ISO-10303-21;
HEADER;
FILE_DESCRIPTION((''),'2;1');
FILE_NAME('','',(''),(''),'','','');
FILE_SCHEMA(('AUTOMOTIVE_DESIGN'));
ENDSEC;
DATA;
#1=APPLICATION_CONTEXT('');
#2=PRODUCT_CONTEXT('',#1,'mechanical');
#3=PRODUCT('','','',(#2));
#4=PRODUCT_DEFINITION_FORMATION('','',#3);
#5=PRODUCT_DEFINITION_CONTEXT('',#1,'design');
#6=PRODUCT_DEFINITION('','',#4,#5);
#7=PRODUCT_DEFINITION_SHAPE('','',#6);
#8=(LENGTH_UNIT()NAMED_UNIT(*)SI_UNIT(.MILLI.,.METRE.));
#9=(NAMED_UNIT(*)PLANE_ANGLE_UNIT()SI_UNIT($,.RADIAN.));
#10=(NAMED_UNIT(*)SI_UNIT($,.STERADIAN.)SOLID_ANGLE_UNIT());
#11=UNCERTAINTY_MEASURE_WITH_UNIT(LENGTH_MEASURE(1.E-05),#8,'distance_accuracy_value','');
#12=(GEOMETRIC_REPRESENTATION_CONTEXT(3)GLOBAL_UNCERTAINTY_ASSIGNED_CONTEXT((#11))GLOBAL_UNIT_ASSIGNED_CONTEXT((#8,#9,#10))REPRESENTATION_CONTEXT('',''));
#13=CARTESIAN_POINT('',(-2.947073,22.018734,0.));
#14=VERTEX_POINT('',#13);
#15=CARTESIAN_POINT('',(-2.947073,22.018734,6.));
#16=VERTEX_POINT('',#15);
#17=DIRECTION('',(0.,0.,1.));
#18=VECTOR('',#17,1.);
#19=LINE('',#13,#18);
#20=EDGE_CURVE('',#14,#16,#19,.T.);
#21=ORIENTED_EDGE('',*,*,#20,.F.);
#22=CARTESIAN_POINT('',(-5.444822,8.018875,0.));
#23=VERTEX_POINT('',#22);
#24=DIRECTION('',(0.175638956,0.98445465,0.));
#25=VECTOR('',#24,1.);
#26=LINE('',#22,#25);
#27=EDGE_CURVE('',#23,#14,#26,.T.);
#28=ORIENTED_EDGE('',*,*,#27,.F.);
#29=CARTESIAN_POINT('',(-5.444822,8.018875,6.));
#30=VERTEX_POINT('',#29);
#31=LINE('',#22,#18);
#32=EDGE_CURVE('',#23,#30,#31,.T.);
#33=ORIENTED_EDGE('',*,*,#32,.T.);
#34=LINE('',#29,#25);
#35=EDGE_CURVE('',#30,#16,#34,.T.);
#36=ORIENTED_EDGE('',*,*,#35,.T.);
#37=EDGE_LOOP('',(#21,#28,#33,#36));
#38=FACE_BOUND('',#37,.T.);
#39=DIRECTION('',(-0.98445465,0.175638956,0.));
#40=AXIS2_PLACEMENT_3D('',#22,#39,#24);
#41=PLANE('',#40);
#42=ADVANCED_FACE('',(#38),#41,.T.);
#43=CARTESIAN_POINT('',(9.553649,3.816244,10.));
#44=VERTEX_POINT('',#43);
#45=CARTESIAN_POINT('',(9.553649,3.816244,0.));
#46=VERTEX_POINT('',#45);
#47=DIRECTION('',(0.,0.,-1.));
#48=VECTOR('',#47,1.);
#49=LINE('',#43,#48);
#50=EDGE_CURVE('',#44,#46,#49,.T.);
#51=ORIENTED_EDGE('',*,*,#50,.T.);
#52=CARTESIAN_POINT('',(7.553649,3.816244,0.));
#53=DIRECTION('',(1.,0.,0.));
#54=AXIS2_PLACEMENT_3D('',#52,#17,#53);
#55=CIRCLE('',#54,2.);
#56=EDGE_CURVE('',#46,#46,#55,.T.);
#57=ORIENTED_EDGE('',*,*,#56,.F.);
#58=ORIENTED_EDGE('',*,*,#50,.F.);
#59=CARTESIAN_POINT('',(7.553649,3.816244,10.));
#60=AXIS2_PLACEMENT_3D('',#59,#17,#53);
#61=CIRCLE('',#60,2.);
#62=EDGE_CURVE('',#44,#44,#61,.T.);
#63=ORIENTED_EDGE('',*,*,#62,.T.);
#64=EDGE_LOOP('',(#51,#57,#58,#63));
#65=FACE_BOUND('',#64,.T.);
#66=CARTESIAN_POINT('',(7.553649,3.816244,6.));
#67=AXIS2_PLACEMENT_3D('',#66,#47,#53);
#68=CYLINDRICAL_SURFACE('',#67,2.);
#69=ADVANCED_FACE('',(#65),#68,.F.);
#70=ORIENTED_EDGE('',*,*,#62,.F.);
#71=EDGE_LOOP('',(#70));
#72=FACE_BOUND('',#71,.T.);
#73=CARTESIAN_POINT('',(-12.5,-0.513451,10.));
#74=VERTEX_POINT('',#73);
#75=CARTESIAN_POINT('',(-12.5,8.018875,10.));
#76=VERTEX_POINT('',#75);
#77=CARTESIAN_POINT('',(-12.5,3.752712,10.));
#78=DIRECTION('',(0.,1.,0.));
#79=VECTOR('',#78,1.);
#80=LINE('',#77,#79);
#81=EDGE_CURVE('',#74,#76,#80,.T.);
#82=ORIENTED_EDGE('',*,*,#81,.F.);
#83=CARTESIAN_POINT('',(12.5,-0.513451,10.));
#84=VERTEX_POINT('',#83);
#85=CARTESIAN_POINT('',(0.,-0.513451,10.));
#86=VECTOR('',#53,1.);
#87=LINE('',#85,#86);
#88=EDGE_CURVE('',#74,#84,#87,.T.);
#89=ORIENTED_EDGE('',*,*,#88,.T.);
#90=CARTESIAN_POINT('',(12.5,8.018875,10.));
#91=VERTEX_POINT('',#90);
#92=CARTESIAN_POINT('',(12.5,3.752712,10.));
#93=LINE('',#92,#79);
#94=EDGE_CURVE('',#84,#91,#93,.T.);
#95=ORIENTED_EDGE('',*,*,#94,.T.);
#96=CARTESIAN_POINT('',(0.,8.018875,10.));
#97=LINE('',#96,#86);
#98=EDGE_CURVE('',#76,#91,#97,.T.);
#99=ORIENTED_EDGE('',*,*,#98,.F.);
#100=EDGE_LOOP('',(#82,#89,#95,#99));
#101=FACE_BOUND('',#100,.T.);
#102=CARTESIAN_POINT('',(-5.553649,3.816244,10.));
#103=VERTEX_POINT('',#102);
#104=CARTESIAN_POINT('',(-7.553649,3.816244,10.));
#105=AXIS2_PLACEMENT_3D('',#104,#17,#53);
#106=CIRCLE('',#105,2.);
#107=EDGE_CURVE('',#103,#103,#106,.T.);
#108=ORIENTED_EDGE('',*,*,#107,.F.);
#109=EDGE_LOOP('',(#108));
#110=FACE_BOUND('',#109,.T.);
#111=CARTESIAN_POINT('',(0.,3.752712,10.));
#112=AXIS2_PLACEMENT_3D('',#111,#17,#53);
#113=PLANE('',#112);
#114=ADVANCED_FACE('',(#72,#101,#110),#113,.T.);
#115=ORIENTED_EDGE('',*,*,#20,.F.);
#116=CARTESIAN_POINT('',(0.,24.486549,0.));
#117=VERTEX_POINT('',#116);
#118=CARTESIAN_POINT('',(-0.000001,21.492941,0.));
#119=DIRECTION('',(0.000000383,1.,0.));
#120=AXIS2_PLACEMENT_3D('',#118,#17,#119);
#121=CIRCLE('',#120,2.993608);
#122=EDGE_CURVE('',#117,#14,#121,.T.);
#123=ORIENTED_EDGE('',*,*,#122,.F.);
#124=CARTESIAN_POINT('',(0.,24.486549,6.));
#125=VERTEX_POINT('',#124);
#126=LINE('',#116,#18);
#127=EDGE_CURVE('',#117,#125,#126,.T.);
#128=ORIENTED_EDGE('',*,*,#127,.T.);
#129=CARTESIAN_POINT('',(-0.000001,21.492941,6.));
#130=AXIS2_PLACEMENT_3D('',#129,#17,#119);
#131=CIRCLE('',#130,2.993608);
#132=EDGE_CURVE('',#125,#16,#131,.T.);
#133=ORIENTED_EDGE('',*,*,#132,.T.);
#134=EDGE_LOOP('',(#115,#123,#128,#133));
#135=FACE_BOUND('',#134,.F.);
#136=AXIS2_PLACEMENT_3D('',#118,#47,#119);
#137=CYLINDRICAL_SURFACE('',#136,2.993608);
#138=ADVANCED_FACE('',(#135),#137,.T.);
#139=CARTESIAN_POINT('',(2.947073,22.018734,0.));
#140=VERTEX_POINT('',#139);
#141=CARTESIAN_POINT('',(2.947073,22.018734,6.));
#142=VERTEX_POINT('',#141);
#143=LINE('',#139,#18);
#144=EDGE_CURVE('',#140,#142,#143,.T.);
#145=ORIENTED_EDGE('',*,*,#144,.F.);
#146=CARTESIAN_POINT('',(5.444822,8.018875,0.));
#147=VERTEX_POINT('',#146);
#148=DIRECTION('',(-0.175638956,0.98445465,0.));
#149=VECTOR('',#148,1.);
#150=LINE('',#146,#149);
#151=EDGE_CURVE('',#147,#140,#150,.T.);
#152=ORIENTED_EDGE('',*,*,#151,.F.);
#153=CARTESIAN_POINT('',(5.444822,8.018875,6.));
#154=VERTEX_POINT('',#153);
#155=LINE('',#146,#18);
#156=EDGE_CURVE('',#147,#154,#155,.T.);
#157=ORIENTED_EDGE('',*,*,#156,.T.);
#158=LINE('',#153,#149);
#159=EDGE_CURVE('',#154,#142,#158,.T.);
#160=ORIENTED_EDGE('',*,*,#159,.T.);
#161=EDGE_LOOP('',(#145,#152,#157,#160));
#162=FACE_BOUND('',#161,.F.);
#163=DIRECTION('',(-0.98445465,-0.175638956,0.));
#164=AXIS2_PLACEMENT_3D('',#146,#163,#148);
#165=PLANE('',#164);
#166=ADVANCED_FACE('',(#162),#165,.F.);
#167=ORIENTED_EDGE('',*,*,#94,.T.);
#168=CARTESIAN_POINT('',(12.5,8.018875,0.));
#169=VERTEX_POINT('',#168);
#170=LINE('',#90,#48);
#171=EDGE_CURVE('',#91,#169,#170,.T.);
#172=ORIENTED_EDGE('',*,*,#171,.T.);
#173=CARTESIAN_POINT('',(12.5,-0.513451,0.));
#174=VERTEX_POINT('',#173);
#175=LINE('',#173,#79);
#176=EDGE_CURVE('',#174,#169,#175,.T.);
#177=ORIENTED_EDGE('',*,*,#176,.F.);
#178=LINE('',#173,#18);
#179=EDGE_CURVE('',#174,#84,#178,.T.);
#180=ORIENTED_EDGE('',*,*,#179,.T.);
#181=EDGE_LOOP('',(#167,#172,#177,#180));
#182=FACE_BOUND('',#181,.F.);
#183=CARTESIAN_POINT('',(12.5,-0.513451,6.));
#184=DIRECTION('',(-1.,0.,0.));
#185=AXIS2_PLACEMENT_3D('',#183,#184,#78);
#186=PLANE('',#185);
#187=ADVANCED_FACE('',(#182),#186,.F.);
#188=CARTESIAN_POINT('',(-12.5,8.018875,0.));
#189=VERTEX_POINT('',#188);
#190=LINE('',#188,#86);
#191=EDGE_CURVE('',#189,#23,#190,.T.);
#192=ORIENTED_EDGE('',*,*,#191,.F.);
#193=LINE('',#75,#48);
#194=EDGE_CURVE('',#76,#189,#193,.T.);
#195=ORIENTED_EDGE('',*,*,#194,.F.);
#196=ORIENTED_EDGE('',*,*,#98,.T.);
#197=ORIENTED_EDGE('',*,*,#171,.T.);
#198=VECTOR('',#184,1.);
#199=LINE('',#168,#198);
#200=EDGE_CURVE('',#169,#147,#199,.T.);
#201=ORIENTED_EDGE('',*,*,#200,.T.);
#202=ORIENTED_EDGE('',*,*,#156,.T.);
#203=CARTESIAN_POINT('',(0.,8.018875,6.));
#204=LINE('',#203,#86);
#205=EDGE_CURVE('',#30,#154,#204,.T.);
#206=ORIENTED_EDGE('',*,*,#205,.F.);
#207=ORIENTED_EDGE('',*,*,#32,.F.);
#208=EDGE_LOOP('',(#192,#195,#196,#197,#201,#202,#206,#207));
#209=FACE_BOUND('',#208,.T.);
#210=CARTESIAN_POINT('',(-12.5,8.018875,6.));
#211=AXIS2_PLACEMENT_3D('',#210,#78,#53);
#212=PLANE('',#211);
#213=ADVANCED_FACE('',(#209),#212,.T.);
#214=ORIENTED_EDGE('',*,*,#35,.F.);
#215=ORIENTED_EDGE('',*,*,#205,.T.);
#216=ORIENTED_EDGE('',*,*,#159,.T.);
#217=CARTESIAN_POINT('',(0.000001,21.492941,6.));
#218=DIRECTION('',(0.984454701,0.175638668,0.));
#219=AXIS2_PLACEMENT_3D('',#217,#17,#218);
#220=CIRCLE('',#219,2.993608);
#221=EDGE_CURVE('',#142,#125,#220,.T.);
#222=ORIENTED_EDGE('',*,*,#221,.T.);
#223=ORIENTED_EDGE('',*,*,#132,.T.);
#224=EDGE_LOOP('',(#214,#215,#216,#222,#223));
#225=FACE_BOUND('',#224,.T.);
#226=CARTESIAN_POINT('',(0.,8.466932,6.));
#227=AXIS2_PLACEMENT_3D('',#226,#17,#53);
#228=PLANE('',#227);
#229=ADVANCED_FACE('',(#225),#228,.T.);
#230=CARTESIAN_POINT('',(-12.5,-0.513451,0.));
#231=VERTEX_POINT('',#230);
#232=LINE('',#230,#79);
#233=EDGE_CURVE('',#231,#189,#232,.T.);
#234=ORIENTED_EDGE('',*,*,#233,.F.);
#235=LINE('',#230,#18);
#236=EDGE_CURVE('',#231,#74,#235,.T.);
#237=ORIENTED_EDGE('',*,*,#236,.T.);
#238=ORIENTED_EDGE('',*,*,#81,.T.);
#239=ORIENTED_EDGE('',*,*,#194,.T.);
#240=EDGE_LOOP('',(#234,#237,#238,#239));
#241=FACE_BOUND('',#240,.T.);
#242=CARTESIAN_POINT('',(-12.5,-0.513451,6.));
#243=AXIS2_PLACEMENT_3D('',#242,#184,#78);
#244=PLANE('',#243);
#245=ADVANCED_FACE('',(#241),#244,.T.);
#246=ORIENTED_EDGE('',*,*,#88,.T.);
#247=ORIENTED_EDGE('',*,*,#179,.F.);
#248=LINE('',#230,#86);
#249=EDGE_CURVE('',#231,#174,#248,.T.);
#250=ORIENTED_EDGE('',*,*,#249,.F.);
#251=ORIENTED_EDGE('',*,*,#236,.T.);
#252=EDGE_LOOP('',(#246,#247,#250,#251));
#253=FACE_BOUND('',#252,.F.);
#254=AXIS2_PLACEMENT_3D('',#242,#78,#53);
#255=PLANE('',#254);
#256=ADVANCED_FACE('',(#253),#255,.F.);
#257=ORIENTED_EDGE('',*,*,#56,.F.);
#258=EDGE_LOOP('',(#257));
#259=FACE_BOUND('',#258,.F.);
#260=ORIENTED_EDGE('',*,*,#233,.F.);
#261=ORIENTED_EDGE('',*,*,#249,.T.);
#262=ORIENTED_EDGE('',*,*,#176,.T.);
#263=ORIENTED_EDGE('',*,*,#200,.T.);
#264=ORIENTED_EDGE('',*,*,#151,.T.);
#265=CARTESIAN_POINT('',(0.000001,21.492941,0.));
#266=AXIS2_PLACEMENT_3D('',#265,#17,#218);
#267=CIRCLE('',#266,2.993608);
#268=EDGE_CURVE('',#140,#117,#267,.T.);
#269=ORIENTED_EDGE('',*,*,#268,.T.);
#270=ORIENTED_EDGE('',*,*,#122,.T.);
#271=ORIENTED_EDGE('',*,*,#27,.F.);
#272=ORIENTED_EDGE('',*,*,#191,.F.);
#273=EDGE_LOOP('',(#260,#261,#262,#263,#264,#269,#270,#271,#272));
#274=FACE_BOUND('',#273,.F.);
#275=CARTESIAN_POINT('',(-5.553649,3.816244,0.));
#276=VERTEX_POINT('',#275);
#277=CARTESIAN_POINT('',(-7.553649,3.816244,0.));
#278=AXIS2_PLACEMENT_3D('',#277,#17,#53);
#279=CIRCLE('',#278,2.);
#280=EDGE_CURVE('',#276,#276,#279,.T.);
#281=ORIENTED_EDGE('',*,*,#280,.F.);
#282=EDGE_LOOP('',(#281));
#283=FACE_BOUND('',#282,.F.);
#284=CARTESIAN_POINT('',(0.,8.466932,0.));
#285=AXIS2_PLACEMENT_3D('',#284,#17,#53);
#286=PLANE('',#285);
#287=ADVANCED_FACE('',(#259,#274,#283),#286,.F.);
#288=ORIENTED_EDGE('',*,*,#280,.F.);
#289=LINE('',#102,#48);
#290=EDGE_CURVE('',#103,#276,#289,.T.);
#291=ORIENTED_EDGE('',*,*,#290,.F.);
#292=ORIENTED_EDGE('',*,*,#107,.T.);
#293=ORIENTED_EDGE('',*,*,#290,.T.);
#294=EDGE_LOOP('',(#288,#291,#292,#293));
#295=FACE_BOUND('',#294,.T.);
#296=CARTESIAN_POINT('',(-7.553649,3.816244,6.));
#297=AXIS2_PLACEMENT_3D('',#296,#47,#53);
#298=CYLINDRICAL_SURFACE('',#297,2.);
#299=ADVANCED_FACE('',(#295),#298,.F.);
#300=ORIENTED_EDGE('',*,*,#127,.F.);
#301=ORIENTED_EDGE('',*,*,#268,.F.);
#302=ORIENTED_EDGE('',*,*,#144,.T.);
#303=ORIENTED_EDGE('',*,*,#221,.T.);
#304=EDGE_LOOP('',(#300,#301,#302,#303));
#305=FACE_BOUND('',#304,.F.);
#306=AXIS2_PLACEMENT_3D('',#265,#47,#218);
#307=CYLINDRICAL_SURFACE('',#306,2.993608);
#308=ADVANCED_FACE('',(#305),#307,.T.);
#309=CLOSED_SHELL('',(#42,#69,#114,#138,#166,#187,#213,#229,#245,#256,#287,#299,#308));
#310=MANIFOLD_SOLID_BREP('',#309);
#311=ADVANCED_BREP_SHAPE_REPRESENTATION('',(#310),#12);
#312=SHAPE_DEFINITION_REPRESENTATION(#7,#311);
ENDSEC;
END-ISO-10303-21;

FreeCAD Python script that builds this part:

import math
import FreeCAD as App
import Part
import Sketcher
from FreeCAD import Vector
Q = App.Units.Quantity

doc = App.newDocument("Part")
body = doc.addObject("PartDesign::Body", "Body")

# Sketch on XY plane
sketch1 = body.newObject("Sketcher::SketchObject", "Sketch")
sketch1.AttachmentSupport = (doc.getObject("XY_Plane"), [""])
sketch1.MapMode = "FlatFace"
sketch1.addGeometry(Part.LineSegment(Vector(12.5, -0.5, 0), Vector(12.5, 8, 0)), False)
sketch1.addGeometry(Part.LineSegment(Vector(12.5, 8, 0), Vector(5.4, 8, 0)), False)
sketch1.addGeometry(Part.LineSegment(Vector(5.4, 8, 0), Vector(2.9, 22, 0)), False)
sketch1.addGeometry(Part.ArcOfCircle(Part.Circle(Vector(0, 21.5, 0), Vector(0, 0, 1), 3), math.radians(10), math.radians(90)), False)
sketch1.addGeometry(Part.ArcOfCircle(Part.Circle(Vector(0, 21.5, 0), Vector(0, 0, 1), 3), math.radians(90), math.radians(170)), False)
sketch1.addGeometry(Part.LineSegment(Vector(-2.9, 22, 0), Vector(-5.4, 8, 0)), False)
sketch1.addGeometry(Part.LineSegment(Vector(-5.4, 8, 0), Vector(-12.5, 8, 0)), False)
sketch1.addGeometry(Part.LineSegment(Vector(-12.5, 8, 0), Vector(-12.5, -0.5, 0)), False)
sketch1.addGeometry(Part.LineSegment(Vector(-12.5, -0.5, 0), Vector(12.5, -0.5, 0)), False)
sketch1.addGeometry(Part.Circle(Vector(-7.6, 3.8, 0), Vector(0, 0, 1), 2), False)
sketch1.addGeometry(Part.Circle(Vector(7.6, 3.8, 0), Vector(0, 0, 1), 2), False)
sketch1.addConstraint(Sketcher.Constraint("Coincident", 0, 2, 1, 1))
sketch1.addConstraint(Sketcher.Constraint("Coincident", 1, 2, 2, 1))
sketch1.addConstraint(Sketcher.Constraint("Tangent", 2, 2, 3, 1))
sketch1.addConstraint(Sketcher.Constraint("Tangent", 3, 2, 4, 1))
sketch1.addConstraint(Sketcher.Constraint("Tangent", 4, 2, 5, 1))
sketch1.addConstraint(Sketcher.Constraint("Coincident", 5, 2, 6, 1))
sketch1.addConstraint(Sketcher.Constraint("Coincident", 6, 2, 7, 1))
sketch1.addConstraint(Sketcher.Constraint("Coincident", 7, 2, 8, 1))
sketch1.addConstraint(Sketcher.Constraint("Coincident", 8, 2, 0, 1))
sketch1.addConstraint(Sketcher.Constraint("Vertical", 0))
sketch1.addConstraint(Sketcher.Constraint("Horizontal", 1))
sketch1.addConstraint(Sketcher.Constraint("Horizontal", 6))
sketch1.addConstraint(Sketcher.Constraint("Vertical", 7))
sketch1.addConstraint(Sketcher.Constraint("Horizontal", 8))
sketch1.addConstraint(Sketcher.Constraint("Equal", 3, 4))
sketch1.addConstraint(Sketcher.Constraint("Equal", 9, 10))
sketch1.addConstraint(Sketcher.Constraint("Symmetric", 9, 3, 10, 3, -2))
sketch1.addConstraint(Sketcher.Constraint("Symmetric", 2, 2, 4, 2, -2))
sketch1.addConstraint(Sketcher.Constraint("Symmetric", 0, 2, 6, 2, -2))
sketch1.addConstraint(Sketcher.Constraint("PointOnObject", 3, 2, -2))
sketch1.addConstraint(Sketcher.Constraint("Diameter", 9, Q("4 mm")))
sketch1.addConstraint(Sketcher.Constraint("DistanceX", 8, 1, 8, 2, Q("25 mm")))
sketch1.addConstraint(Sketcher.Constraint("Radius", 3, Q("2.993608 mm")))
sketch1.addConstraint(Sketcher.Constraint("Distance", 2, Q("14.220928 mm")))
sketch1.addConstraint(Sketcher.Constraint("DistanceX", 1, 2, 1, 1, Q("7.055178 mm")))
sketch1.addConstraint(Sketcher.Constraint("DistanceY", 0, 1, 0, 2, Q("8.532326 mm")))
sketch1.addConstraint(Sketcher.Constraint("DistanceY", -1, 1, 3, 3, Q("21.492941 mm")))
sketch1.addConstraint(Sketcher.Constraint("DistanceX", 9, 3, -1, 1, Q("7.553649 mm")))
sketch1.addConstraint(Sketcher.Constraint("DistanceY", 10, 3, 0, 2, Q("4.202631 mm")))
pad1 = body.newObject("PartDesign::Pad", "Pad")
pad1.Profile = sketch1
pad1.Length = 6

# Sketch on XY plane
sketch2 = body.newObject("Sketcher::SketchObject", "Sketch001")
sketch2.AttachmentSupport = (doc.getObject("XY_Plane"), [""])
sketch2.MapMode = "FlatFace"
sketch2.AttachmentOffset = App.Placement(Vector(0, 0, 6), App.Rotation())
sketch2.addGeometry(Part.LineSegment(Vector(-12.5, 8, 0), Vector(-12.5, -0.5, 0)), False)
sketch2.addGeometry(Part.LineSegment(Vector(-12.5, -0.5, 0), Vector(12.5, -0.5, 0)), False)
sketch2.addGeometry(Part.LineSegment(Vector(12.5, -0.5, 0), Vector(12.5, 8, 0)), False)
sketch2.addGeometry(Part.LineSegment(Vector(12.5, 8, 0), Vector(-12.5, 8, 0)), False)
sketch2.addGeometry(Part.Circle(Vector(-7.6, 3.8, 0), Vector(0, 0, 1), 2), False)
sketch2.addGeometry(Part.Circle(Vector(7.6, 3.8, 0), Vector(0, 0, 1), 2), False)
sketch2.addConstraint(Sketcher.Constraint("Coincident", 0, 2, 1, 1))
sketch2.addConstraint(Sketcher.Constraint("Coincident", 1, 2, 2, 1))
sketch2.addConstraint(Sketcher.Constraint("Coincident", 2, 2, 3, 1))
sketch2.addConstraint(Sketcher.Constraint("Coincident", 3, 2, 0, 1))
sketch2.addConstraint(Sketcher.Constraint("Vertical", 0))
sketch2.addConstraint(Sketcher.Constraint("Horizontal", 1))
sketch2.addConstraint(Sketcher.Constraint("Vertical", 2))
sketch2.addConstraint(Sketcher.Constraint("Horizontal", 3))
sketch2.addConstraint(Sketcher.Constraint("Equal", 4, 5))
sketch2.addConstraint(Sketcher.Constraint("Symmetric", 4, 3, 5, 3, -2))
sketch2.addConstraint(Sketcher.Constraint("Diameter", 4, Q("4 mm")))
sketch2.addConstraint(Sketcher.Constraint("DistanceX", 1, 1, 1, 2, Q("25 mm")))
sketch2.addConstraint(Sketcher.Constraint("DistanceX", 0, 2, -1, 1, Q("12.5 mm")))
sketch2.addConstraint(Sketcher.Constraint("DistanceY", 0, 2, 0, 1, Q("8.532326 mm")))
sketch2.addConstraint(Sketcher.Constraint("DistanceX", 4, 3, -1, 1, Q("7.553649 mm")))
sketch2.addConstraint(Sketcher.Constraint("DistanceY", 0, 2, -1, 1, Q("0.513451 mm")))
sketch2.addConstraint(Sketcher.Constraint("DistanceY", 5, 3, 2, 2, Q("4.202631 mm")))
pad2 = body.newObject("PartDesign::Pad", "Pad001")
pad2.Profile = sketch2
pad2.Length = 4

doc.recompute()
